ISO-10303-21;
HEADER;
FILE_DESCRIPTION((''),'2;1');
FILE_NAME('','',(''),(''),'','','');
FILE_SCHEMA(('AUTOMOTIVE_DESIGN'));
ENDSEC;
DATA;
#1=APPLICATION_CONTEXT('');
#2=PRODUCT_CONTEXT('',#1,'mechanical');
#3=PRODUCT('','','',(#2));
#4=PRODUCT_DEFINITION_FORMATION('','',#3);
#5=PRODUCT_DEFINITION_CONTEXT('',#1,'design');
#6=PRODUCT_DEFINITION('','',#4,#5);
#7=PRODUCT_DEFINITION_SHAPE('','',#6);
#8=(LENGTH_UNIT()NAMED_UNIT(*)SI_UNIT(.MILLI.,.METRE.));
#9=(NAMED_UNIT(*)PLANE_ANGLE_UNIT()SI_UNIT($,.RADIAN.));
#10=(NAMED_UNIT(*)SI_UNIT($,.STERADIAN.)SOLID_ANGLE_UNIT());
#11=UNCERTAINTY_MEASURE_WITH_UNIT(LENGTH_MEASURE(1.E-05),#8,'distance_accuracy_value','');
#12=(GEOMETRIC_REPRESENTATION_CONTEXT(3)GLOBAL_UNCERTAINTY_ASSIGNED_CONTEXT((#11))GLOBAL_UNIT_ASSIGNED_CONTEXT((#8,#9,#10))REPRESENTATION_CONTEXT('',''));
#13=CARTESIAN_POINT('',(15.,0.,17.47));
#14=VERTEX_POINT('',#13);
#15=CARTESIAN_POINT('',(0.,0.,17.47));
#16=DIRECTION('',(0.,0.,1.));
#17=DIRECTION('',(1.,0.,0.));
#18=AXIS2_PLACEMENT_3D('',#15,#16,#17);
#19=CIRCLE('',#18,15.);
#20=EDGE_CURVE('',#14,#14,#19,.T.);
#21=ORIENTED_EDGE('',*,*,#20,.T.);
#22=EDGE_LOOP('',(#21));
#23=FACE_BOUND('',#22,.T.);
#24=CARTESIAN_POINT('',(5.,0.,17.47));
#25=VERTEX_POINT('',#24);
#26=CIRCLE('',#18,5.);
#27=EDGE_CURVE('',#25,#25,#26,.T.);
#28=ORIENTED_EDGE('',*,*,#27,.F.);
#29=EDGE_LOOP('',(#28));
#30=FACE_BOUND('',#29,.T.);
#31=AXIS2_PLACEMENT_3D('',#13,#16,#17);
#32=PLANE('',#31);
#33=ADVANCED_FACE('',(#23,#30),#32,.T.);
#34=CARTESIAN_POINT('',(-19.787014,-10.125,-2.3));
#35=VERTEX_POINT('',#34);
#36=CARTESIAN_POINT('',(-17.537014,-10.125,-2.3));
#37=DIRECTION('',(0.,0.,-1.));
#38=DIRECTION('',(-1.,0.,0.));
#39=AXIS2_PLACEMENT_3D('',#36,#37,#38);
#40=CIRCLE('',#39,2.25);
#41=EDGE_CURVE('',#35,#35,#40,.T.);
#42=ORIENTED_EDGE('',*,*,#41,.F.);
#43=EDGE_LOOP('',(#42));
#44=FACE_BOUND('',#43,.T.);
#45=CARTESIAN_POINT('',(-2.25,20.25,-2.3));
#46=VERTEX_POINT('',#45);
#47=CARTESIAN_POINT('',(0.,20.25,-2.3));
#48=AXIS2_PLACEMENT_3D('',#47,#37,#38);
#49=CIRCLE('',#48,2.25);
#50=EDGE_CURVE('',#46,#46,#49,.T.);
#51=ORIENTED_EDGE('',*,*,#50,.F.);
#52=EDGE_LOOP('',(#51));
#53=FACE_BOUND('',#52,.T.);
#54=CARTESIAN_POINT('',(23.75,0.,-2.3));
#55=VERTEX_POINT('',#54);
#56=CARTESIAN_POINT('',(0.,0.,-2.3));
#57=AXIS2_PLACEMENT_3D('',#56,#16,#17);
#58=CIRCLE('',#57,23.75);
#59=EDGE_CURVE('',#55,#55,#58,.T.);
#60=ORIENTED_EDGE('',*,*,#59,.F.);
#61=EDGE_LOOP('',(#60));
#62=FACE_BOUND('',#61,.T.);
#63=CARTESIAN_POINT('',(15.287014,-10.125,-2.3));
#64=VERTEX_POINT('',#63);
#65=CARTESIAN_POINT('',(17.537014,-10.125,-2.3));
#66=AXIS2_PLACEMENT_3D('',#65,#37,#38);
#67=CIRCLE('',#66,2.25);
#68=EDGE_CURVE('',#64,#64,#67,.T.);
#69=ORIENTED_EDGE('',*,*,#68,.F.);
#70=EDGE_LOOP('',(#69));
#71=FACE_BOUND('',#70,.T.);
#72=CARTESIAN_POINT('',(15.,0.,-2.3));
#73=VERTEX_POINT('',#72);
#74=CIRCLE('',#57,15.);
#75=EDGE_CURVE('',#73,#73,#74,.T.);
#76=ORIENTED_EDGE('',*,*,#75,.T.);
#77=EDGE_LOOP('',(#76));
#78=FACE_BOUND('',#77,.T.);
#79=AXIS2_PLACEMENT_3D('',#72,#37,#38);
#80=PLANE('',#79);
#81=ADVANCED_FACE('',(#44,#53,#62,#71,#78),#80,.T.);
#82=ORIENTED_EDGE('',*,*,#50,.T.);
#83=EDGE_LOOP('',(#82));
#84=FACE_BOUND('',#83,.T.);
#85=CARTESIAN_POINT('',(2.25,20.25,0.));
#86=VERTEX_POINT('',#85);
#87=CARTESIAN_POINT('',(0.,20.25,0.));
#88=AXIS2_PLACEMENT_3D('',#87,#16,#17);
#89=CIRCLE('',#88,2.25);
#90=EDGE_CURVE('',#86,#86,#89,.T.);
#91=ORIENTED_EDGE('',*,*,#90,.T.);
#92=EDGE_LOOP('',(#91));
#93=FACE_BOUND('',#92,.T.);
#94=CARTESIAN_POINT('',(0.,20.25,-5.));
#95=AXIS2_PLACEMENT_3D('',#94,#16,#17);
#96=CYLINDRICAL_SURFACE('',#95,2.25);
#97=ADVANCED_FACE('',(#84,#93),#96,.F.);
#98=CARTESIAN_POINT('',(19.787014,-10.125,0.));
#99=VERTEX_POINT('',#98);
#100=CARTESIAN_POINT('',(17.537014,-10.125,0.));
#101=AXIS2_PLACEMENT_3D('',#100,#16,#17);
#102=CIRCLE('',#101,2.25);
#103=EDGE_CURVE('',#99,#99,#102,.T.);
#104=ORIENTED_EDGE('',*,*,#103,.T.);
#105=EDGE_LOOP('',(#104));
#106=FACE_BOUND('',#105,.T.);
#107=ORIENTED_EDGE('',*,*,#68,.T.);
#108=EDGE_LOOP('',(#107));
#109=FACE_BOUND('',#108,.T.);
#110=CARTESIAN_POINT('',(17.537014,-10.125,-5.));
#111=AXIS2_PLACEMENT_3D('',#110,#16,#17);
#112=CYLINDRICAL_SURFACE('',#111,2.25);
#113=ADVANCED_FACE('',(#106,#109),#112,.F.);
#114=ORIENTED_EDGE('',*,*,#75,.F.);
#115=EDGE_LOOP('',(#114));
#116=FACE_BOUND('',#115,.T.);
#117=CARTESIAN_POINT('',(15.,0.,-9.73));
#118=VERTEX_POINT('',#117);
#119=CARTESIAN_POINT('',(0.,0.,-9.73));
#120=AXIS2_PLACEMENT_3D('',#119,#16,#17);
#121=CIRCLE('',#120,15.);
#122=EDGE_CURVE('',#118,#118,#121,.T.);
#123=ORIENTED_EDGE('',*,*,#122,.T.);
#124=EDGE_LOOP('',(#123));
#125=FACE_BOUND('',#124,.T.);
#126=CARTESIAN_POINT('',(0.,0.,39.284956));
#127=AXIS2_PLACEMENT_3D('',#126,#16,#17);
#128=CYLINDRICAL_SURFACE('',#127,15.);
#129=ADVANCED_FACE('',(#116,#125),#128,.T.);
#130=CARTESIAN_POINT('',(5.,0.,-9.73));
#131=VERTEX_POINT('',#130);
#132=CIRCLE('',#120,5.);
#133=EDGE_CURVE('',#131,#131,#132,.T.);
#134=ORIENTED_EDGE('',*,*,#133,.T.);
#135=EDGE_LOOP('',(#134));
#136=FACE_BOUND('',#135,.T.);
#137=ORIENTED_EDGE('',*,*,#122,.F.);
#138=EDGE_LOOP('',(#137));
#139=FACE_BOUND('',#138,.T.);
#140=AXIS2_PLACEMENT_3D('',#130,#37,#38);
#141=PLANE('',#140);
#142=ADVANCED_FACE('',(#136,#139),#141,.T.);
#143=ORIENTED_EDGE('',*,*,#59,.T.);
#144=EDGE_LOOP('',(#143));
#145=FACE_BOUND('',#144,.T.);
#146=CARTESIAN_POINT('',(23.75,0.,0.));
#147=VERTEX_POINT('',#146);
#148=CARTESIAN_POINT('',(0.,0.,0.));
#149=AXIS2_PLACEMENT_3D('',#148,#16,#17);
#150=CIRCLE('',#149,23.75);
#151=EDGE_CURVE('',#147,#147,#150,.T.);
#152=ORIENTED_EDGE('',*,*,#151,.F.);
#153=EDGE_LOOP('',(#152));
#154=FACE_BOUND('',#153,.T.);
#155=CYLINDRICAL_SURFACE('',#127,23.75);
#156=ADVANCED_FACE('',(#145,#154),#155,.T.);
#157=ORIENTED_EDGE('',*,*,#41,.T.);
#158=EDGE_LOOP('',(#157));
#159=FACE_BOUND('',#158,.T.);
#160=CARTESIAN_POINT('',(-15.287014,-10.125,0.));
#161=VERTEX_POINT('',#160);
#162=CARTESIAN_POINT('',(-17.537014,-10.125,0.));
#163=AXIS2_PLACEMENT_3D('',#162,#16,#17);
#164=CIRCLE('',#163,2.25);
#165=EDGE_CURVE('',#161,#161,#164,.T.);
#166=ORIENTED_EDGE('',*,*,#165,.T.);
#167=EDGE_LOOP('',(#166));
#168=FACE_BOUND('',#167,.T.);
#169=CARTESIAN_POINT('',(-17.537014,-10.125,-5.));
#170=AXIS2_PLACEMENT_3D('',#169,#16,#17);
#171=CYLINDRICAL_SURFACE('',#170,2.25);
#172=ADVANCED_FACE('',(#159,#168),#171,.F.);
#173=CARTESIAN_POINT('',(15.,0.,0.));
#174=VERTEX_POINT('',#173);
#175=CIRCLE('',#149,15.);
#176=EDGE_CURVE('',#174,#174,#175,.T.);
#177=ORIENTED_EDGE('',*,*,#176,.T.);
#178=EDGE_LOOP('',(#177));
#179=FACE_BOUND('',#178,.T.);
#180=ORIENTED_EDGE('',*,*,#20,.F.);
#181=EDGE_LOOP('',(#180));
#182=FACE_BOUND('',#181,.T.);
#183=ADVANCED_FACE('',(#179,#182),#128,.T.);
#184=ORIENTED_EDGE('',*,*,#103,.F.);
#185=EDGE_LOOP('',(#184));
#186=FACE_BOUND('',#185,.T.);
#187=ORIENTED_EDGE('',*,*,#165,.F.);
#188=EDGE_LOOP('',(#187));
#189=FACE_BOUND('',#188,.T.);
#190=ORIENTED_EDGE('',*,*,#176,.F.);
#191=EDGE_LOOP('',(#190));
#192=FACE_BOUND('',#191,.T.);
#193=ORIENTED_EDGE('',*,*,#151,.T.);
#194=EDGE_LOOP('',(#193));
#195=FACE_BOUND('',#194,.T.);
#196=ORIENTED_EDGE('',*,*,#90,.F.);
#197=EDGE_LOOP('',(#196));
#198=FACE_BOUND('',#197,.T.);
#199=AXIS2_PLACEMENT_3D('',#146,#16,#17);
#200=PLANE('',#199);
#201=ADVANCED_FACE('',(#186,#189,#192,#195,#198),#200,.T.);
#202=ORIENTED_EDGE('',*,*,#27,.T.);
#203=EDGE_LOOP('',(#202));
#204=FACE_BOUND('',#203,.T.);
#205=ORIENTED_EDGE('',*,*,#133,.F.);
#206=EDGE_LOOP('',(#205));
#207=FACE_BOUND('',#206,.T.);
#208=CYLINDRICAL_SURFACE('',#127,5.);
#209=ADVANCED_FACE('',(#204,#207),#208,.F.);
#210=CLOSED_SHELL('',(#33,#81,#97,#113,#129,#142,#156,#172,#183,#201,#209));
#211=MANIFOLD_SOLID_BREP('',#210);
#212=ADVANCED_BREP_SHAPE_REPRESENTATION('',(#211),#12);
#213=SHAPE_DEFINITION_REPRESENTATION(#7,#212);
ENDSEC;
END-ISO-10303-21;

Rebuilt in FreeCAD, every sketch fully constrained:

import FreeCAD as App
import Part
import Sketcher
from FreeCAD import Vector
Q = App.Units.Quantity

doc = App.newDocument("Part")
body = doc.addObject("PartDesign::Body", "Body")

# Sketch on XZ plane
sketch1 = body.newObject("Sketcher::SketchObject", "Sketch")
sketch1.AttachmentSupport = (doc.getObject("XZ_Plane"), [""])
sketch1.MapMode = "FlatFace"
sketch1.addGeometry(Part.LineSegment(Vector(5, -9.7, 0), Vector(5, 17.5, 0)), False)
sketch1.addGeometry(Part.LineSegment(Vector(5, 17.5, 0), Vector(15, 17.5, 0)), False)
sketch1.addGeometry(Part.LineSegment(Vector(15, 17.5, 0), Vector(15, 0, 0)), False)
sketch1.addGeometry(Part.LineSegment(Vector(15, 0, 0), Vector(23.8, 0, 0)), False)
sketch1.addGeometry(Part.LineSegment(Vector(23.8, 0, 0), Vector(23.8, -2.3, 0)), False)
sketch1.addGeometry(Part.LineSegment(Vector(23.8, -2.3, 0), Vector(15, -2.3, 0)), False)
sketch1.addGeometry(Part.LineSegment(Vector(15, -2.3, 0), Vector(15, -9.7, 0)), False)
sketch1.addGeometry(Part.LineSegment(Vector(15, -9.7, 0), Vector(5, -9.7, 0)), False)
sketch1.addConstraint(Sketcher.Constraint("Coincident", 0, 2, 1, 1))
sketch1.addConstraint(Sketcher.Constraint("Coincident", 1, 2, 2, 1))
sketch1.addConstraint(Sketcher.Constraint("Coincident", 2, 2, 3, 1))
sketch1.addConstraint(Sketcher.Constraint("Coincident", 3, 2, 4, 1))
sketch1.addConstraint(Sketcher.Constraint("Coincident", 4, 2, 5, 1))
sketch1.addConstraint(Sketcher.Constraint("Coincident", 5, 2, 6, 1))
sketch1.addConstraint(Sketcher.Constraint("Coincident", 6, 2, 7, 1))
sketch1.addConstraint(Sketcher.Constraint("Coincident", 7, 2, 0, 1))
sketch1.addConstraint(Sketcher.Constraint("Vertical", 0))
sketch1.addConstraint(Sketcher.Constraint("Horizontal", 1))
sketch1.addConstraint(Sketcher.Constraint("Vertical", 2))
sketch1.addConstraint(Sketcher.Constraint("Horizontal", 3))
sketch1.addConstraint(Sketcher.Constraint("Vertical", 4))
sketch1.addConstraint(Sketcher.Constraint("Horizontal", 5))
sketch1.addConstraint(Sketcher.Constraint("Vertical", 6))
sketch1.addConstraint(Sketcher.Constraint("Horizontal", 7))
sketch1.addConstraint(Sketcher.Constraint("PointOnObject", 2, 2, -1))
sketch1.addConstraint(Sketcher.Constraint("Vertical", 2, 2, 5, 2))
sketch1.addConstraint(Sketcher.Constraint("DistanceX", 1, 1, 1, 2, Q("10 mm")))
sketch1.addConstraint(Sketcher.Constraint("DistanceY", 0, 1, 0, 2, Q("27.2 mm")))
sketch1.addConstraint(Sketcher.Constraint("DistanceY", 4, 2, 4, 1, Q("2.3 mm")))
sketch1.addConstraint(Sketcher.Constraint("DistanceX", -1, 1, 0, 2, Q("5 mm")))
sketch1.addConstraint(Sketcher.Constraint("DistanceX", 3, 1, 3, 2, Q("8.75 mm")))
sketch1.addConstraint(Sketcher.Constraint("DistanceY", 2, 2, 2, 1, Q("17.47 mm")))
revolution = body.newObject("PartDesign::Revolution", "Revolution")
revolution.Profile = sketch1
revolution.ReferenceAxis = (sketch1, ["V_Axis"])
revolution.Angle = 360

# Sketch on XY plane
sketch2 = body.newObject("Sketcher::SketchObject", "Sketch001")
sketch2.AttachmentSupport = (doc.getObject("XY_Plane"), [""])
sketch2.MapMode = "FlatFace"
sketch2.addGeometry(Part.Circle(Vector(0, 20.2, 0), Vector(0, 0, 1), 2.2), False)
sketch2.addGeometry(Part.Circle(Vector(17.5, -10.1, 0), Vector(0, 0, 1), 2.2), False)
sketch2.addGeometry(Part.Circle(Vector(-17.5, -10.1, 0), Vector(0, 0, 1), 2.2), False)
sketch2.addConstraint(Sketcher.Constraint("Equal", 0, 1))
sketch2.addConstraint(Sketcher.Constraint("Equal", 1, 2))
sketch2.addConstraint(Sketcher.Constraint("Symmetric", 1, 3, 2, 3, -2))
sketch2.addConstraint(Sketcher.Constraint("PointOnObject", 0, 3, -2))
sketch2.addConstraint(Sketcher.Constraint("Diameter", 0, Q("4.5 mm")))
sketch2.addConstraint(Sketcher.Constraint("DistanceY", -1, 1, 0, 3, Q("20.25 mm")))
sketch2.addConstraint(Sketcher.Constraint("DistanceY", 1, 3, -1, 1, Q("10.125 mm")))
sketch2.addConstraint(Sketcher.Constraint("DistanceX", 2, 3, 1, 3, Q("35.074029 mm")))
pocket1 = body.newObject("PartDesign::Pocket", "Pocket")
pocket1.Profile = sketch2
pocket1.Length = 10
pocket1.Midplane = True

doc.recompute()
